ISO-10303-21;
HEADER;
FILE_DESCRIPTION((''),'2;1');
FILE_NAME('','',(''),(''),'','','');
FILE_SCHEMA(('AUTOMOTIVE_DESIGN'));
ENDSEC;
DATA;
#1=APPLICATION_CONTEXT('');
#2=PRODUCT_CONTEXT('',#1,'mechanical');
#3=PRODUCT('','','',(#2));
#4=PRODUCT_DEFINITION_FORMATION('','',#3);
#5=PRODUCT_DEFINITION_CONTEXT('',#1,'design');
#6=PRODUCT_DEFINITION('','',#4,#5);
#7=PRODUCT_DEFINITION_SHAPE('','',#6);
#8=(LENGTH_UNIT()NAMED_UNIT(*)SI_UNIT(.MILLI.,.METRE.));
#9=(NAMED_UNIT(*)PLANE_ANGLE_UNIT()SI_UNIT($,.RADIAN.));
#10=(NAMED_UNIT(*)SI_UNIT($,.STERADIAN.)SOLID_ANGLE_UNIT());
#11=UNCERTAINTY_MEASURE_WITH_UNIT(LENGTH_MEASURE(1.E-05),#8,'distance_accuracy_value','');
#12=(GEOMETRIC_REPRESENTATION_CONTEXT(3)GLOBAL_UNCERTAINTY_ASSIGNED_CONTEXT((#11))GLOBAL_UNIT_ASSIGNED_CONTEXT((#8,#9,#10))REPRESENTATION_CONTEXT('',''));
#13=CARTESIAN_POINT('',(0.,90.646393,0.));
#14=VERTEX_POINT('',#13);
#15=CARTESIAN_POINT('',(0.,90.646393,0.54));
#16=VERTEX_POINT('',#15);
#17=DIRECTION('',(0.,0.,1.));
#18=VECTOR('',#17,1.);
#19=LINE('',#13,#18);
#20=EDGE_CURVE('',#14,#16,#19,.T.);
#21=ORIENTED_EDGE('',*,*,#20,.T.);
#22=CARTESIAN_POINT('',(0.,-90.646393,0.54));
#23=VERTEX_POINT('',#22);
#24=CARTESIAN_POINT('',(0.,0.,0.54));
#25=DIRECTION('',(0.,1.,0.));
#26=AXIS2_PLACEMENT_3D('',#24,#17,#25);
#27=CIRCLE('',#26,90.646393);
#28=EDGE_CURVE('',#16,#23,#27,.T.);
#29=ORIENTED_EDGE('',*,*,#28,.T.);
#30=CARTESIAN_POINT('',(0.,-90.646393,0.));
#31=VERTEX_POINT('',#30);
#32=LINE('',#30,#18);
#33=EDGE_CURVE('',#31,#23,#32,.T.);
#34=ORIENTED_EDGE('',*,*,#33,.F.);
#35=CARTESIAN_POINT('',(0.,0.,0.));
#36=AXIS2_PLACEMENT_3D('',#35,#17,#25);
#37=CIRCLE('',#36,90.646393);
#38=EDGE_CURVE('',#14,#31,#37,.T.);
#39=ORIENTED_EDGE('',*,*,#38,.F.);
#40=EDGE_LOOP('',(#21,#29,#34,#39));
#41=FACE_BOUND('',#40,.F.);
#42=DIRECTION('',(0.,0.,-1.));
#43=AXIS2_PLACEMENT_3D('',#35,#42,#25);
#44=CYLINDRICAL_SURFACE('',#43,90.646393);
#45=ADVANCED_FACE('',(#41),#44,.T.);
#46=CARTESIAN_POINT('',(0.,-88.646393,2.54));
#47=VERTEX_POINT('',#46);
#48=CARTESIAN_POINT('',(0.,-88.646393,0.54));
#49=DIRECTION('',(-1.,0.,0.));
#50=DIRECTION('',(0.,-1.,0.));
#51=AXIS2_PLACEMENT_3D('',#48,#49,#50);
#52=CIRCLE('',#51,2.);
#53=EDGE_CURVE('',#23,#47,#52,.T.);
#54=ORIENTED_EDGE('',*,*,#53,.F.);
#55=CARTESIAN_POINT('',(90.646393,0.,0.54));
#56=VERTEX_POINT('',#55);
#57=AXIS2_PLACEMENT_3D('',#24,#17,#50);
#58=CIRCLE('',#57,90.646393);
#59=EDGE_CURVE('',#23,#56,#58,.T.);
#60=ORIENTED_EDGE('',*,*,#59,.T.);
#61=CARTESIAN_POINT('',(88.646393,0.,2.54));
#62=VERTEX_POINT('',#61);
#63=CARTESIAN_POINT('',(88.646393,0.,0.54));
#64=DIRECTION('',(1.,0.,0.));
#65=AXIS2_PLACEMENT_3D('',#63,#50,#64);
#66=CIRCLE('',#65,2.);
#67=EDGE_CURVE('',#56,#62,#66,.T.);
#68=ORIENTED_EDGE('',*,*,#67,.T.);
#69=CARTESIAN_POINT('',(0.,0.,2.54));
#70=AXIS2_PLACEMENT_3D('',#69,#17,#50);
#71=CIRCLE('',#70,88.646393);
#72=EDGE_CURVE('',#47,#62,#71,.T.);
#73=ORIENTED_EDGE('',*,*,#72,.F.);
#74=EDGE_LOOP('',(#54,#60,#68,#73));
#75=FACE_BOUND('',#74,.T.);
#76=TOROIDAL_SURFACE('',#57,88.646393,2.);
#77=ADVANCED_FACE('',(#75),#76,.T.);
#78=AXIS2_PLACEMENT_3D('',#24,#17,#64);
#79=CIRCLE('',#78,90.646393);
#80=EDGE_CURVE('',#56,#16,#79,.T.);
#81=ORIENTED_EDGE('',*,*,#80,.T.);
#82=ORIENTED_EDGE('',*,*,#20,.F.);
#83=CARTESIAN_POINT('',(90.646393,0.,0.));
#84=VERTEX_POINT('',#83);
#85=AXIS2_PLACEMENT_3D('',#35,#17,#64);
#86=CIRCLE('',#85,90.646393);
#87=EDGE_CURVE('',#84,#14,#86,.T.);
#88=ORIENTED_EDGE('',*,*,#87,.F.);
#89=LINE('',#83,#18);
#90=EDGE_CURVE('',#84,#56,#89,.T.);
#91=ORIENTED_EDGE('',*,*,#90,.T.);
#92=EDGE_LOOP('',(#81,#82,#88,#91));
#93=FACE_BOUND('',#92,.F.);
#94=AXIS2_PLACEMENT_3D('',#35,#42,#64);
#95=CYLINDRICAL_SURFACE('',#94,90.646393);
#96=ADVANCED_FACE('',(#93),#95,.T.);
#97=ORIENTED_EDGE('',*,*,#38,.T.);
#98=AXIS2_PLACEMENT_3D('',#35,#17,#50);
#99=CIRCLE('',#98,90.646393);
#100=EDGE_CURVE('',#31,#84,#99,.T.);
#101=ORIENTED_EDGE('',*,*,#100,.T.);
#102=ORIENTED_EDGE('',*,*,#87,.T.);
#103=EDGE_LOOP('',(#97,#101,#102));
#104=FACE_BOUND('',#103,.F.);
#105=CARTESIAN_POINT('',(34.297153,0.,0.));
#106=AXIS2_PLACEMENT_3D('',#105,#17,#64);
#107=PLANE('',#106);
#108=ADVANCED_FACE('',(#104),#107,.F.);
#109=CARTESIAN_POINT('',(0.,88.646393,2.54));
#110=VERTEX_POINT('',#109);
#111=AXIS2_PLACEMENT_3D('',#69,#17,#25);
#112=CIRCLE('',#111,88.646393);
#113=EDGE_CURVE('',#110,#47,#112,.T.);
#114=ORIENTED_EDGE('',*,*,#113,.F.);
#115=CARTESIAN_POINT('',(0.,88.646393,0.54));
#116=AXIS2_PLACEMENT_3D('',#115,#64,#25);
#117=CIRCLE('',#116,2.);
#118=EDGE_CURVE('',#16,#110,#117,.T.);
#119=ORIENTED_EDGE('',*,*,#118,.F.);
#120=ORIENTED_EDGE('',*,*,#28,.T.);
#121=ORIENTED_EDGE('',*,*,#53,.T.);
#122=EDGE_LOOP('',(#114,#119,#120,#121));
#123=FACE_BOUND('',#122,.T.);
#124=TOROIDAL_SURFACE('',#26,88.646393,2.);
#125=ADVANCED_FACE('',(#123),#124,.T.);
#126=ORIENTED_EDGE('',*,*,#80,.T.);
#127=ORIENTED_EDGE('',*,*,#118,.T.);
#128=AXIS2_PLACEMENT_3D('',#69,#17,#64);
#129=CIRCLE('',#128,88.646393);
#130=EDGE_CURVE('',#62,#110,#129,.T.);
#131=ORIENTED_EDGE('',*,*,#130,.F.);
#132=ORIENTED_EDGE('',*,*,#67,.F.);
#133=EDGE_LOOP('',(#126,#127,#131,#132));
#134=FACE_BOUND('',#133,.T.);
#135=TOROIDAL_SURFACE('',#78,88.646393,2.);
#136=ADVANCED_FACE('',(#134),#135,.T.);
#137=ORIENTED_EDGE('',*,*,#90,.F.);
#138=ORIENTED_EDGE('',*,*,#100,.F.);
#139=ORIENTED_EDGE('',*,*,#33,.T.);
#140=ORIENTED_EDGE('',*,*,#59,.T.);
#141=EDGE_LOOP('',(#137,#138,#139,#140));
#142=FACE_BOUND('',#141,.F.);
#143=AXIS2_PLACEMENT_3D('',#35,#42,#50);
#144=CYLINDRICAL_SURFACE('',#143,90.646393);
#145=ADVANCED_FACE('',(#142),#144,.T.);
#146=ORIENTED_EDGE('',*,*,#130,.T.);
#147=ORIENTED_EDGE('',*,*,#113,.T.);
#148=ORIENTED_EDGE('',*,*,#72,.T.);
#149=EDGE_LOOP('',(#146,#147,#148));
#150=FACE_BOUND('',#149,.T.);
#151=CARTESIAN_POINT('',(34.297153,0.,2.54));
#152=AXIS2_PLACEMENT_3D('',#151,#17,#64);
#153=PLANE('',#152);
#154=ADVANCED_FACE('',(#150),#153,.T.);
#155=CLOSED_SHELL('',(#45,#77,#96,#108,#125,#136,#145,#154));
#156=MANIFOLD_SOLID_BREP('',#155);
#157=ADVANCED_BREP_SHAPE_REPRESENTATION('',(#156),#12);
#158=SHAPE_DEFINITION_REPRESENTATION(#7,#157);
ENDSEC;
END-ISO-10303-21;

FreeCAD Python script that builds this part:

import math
import FreeCAD as App
import Part
import Sketcher


def edges_at(feature, points):
    """Names of the edges that pass closest to the given points."""
    edges = feature.Shape.Edges
    near = lambda p: min(range(len(edges)), key=lambda i: edges[i].distToShape(Part.Vertex(*p))[0])
    return sorted({f"Edge{near(p) + 1}" for p in points})

doc = App.newDocument("Part")
body = doc.addObject("PartDesign::Body", "Body")

sketch1 = body.newObject("Sketcher::SketchObject", "Sketch")
sketch1.AttachmentSupport = (doc.getObject("XY_Plane"), [""])
sketch1.MapMode = "FlatFace"
sketch1.addGeometry([
    Part.ArcOfCircle(Part.Circle(App.Vector(0, 0, 0), App.Vector(0, 0, 1), 91), math.radians(-90), math.radians(0)),
    Part.ArcOfCircle(Part.Circle(App.Vector(0, 0, 0), App.Vector(0, 0, 1), 91), math.radians(0), math.radians(90)),
    Part.ArcOfCircle(Part.Circle(App.Vector(0, 0, 0), App.Vector(0, 0, 1), 91), math.radians(90), math.radians(270)),
], False)
sketch1.addConstraint([
    Sketcher.Constraint("Tangent", 0, 2, 1, 1),
    Sketcher.Constraint("Tangent", 1, 2, 2, 1),
    Sketcher.Constraint("Tangent", 2, 2, 0, 1),
    Sketcher.Constraint("Coincident", 0, 3, -1, 1),
    Sketcher.Constraint("PointOnObject", 0, 2, -1),
    Sketcher.Constraint("PointOnObject", 1, 2, -2),
    Sketcher.Constraint("PointOnObject", 2, 2, -2),
    Sketcher.Constraint("Radius", 0, 90.646393),
])
pad1 = body.newObject("PartDesign::Pad", "Pad")
pad1.Profile = sketch1
pad1.Length = 2.54
doc.recompute()

fillet = body.newObject("PartDesign::Fillet", "Fillet")
fillet.Base = (pad1, edges_at(pad1, [(-90.646, 0, 2.54)]))
fillet.Radius = 2

doc.recompute()
